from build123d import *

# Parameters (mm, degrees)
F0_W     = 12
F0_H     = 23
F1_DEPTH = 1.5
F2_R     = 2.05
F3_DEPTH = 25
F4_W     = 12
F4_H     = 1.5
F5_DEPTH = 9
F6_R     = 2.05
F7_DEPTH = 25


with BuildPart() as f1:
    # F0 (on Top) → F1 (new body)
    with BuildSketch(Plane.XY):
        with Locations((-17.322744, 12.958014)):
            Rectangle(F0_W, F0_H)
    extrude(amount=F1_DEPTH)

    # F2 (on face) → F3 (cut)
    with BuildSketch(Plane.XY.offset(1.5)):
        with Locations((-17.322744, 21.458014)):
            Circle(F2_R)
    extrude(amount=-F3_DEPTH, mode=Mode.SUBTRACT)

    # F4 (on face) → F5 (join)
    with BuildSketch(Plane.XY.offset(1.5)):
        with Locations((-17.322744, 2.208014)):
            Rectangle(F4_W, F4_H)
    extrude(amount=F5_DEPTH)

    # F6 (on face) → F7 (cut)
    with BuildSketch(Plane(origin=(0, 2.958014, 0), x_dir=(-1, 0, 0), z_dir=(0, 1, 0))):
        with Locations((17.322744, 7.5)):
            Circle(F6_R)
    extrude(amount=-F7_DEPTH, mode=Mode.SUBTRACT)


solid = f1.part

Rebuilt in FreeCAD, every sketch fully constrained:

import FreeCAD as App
import Part
import Sketcher

doc = App.newDocument("Part")
body = doc.addObject("PartDesign::Body", "Body")

sketch1 = body.newObject("Sketcher::SketchObject", "Sketch")
sketch1.AttachmentSupport = (doc.getObject("XY_Plane"), [""])
sketch1.MapMode = "FlatFace"
sketch1.addGeometry(Part.LineSegment(App.Vector(-23.322744, 24.458014, 0), App.Vector(-23.322744, 1.458014, 0)), False)
sketch1.addGeometry(Part.LineSegment(App.Vector(-23.322744, 1.458014, 0), App.Vector(-11.322744, 1.458014, 0)), False)
sketch1.addGeometry(Part.LineSegment(App.Vector(-11.322744, 1.458014, 0), App.Vector(-11.322744, 24.458014, 0)), False)
sketch1.addGeometry(Part.LineSegment(App.Vector(-11.322744, 24.458014, 0), App.Vector(-23.322744, 24.458014, 0)), False)
sketch1.addConstraint(Sketcher.Constraint("Coincident", 0, 2, 1, 1))
sketch1.addConstraint(Sketcher.Constraint("Coincident", 1, 2, 2, 1))
sketch1.addConstraint(Sketcher.Constraint("Coincident", 2, 2, 3, 1))
sketch1.addConstraint(Sketcher.Constraint("Coincident", 3, 2, 0, 1))
sketch1.addConstraint(Sketcher.Constraint("Vertical", 0))
sketch1.addConstraint(Sketcher.Constraint("Horizontal", 1))
sketch1.addConstraint(Sketcher.Constraint("Vertical", 2))
sketch1.addConstraint(Sketcher.Constraint("Horizontal", 3))
sketch1.addConstraint(Sketcher.Constraint("DistanceX", 1, 1, 1, 2, 12.0))
sketch1.addConstraint(Sketcher.Constraint("DistanceY", 0, 2, 0, 1, 23.0))
sketch1.addConstraint(Sketcher.Constraint("DistanceX", 0, 2, -1, 1, 23.322744))
sketch1.addConstraint(Sketcher.Constraint("DistanceY", -1, 1, 0, 2, 1.458014))
pad1 = body.newObject("PartDesign::Pad", "Pad")
pad1.Profile = sketch1
pad1.Length = 1.5

sketch2 = body.newObject("Sketcher::SketchObject", "Sketch001")
sketch2.AttachmentSupport = (doc.getObject("XY_Plane"), [""])
sketch2.MapMode = "FlatFace"
sketch2.AttachmentOffset = App.Placement(App.Vector(0, 0, 1.5), App.Rotation())
sketch2.addGeometry(Part.Circle(App.Vector(-17.322744, 21.458014, 0), App.Vector(0, 0, 1), 2.05), False)
sketch2.addConstraint(Sketcher.Constraint("Diameter", 0, 4.1))
sketch2.addConstraint(Sketcher.Constraint("DistanceX", 0, 3, -1, 1, 17.322744))
sketch2.addConstraint(Sketcher.Constraint("DistanceY", -1, 1, 0, 3, 21.458014))
pocket1 = body.newObject("PartDesign::Pocket", "Pocket")
pocket1.Profile = sketch2
pocket1.Length = 25

sketch3 = body.newObject("Sketcher::SketchObject", "Sketch002")
sketch3.AttachmentSupport = (doc.getObject("XY_Plane"), [""])
sketch3.MapMode = "FlatFace"
sketch3.AttachmentOffset = App.Placement(App.Vector(0, 0, 1.5), App.Rotation())
sketch3.addGeometry(Part.LineSegment(App.Vector(-23.322744, 2.958014, 0), App.Vector(-23.322744, 1.458014, 0)), False)
sketch3.addGeometry(Part.LineSegment(App.Vector(-23.322744, 1.458014, 0), App.Vector(-11.322744, 1.458014, 0)), False)
sketch3.addGeometry(Part.LineSegment(App.Vector(-11.322744, 1.458014, 0), App.Vector(-11.322744, 2.958014, 0)), False)
sketch3.addGeometry(Part.LineSegment(App.Vector(-11.322744, 2.958014, 0), App.Vector(-23.322744, 2.958014, 0)), False)
sketch3.addConstraint(Sketcher.Constraint("Coincident", 0, 2, 1, 1))
sketch3.addConstraint(Sketcher.Constraint("Coincident", 1, 2, 2, 1))
sketch3.addConstraint(Sketcher.Constraint("Coincident", 2, 2, 3, 1))
sketch3.addConstraint(Sketcher.Constraint("Coincident", 3, 2, 0, 1))
sketch3.addConstraint(Sketcher.Constraint("Vertical", 0))
sketch3.addConstraint(Sketcher.Constraint("Horizontal", 1))
sketch3.addConstraint(Sketcher.Constraint("Vertical", 2))
sketch3.addConstraint(Sketcher.Constraint("Horizontal", 3))
sketch3.addConstraint(Sketcher.Constraint("DistanceX", 1, 1, 1, 2, 12.0))
sketch3.addConstraint(Sketcher.Constraint("DistanceY", 0, 2, 0, 1, 1.5))
sketch3.addConstraint(Sketcher.Constraint("DistanceX", 0, 2, -1, 1, 23.322744))
sketch3.addConstraint(Sketcher.Constraint("DistanceY", -1, 1, 0, 2, 1.458014))
pad2 = body.newObject("PartDesign::Pad", "Pad001")
pad2.Profile = sketch3
pad2.Length = 9

sketch4 = body.newObject("Sketcher::SketchObject", "Sketch003")
sketch4.AttachmentSupport = (doc.getObject("XZ_Plane"), [""])
sketch4.MapMode = "FlatFace"
sketch4.AttachmentOffset = App.Placement(App.Vector(0, 0, -2.958014), App.Rotation())
sketch4.addGeometry(Part.Circle(App.Vector(-17.322744, 7.5, 0), App.Vector(0, 0, 1), 2.05), False)
sketch4.addConstraint(Sketcher.Constraint("Diameter", 0, 4.1))
sketch4.addConstraint(Sketcher.Constraint("DistanceY", -1, 1, 0, 3, 7.5))
sketch4.addConstraint(Sketcher.Constraint("DistanceX", 0, 3, -1, 1, 17.322744))
pocket2 = body.newObject("PartDesign::Pocket", "Pocket001")
pocket2.Profile = sketch4
pocket2.Length = 25
pocket2.Reversed = True

doc.recompute()
